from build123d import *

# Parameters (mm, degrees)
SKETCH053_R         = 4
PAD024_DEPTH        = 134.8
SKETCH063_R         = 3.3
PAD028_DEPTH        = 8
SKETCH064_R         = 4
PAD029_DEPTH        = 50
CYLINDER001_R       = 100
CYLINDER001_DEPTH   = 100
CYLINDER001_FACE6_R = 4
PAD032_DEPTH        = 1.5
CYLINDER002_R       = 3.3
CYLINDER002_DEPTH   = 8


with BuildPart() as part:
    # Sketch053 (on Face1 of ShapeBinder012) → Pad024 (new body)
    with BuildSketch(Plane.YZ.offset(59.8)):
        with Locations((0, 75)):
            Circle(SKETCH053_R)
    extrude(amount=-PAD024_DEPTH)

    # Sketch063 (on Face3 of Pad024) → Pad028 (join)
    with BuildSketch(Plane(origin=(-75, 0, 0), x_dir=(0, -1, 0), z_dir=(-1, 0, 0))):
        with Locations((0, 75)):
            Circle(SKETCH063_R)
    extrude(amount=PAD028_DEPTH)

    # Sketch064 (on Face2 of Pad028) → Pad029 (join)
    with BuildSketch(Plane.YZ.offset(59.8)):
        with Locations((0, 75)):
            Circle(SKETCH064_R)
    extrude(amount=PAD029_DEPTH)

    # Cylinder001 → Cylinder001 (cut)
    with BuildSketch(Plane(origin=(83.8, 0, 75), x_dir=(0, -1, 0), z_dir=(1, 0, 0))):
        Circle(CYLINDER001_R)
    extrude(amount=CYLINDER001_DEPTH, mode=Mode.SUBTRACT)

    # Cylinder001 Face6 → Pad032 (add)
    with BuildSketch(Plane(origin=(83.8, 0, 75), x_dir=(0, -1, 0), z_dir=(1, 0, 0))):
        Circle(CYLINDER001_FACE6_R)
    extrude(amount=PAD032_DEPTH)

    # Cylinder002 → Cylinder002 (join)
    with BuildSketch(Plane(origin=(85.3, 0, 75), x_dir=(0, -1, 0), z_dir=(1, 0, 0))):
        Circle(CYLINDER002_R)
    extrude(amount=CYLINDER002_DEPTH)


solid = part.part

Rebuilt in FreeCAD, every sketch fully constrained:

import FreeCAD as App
import Part
import Sketcher
Q = App.Units.Quantity

doc = App.newDocument("Part")
body = doc.addObject("PartDesign::Body", "Body")

sketch1 = body.newObject("Sketcher::SketchObject", "Sketch")
sketch1.AttachmentSupport = (doc.getObject("YZ_Plane"), [""])
sketch1.MapMode = "FlatFace"
sketch1.AttachmentOffset = App.Placement(App.Vector(0, 0, 59.8), App.Rotation())
sketch1.addGeometry(Part.Circle(App.Vector(0, 75, 0), App.Vector(0, 0, 1), 4), False)
sketch1.addConstraint([
    Sketcher.Constraint("PointOnObject", 0, 3, -2),
    Sketcher.Constraint("Diameter", 0, Q("8 mm")),
    Sketcher.Constraint("DistanceY", -1, 1, 0, 3, Q("75 mm")),
])
pad1 = body.newObject("PartDesign::Pad", "Pad")
pad1.Profile = sketch1
pad1.Length = 134.8
pad1.Reversed = True

sketch2 = body.newObject("Sketcher::SketchObject", "Sketch001")
sketch2.AttachmentSupport = (doc.getObject("YZ_Plane"), [""])
sketch2.MapMode = "FlatFace"
sketch2.AttachmentOffset = App.Placement(App.Vector(0, 0, -75), App.Rotation())
sketch2.addGeometry(Part.Circle(App.Vector(0, 75, 0), App.Vector(0, 0, 1), 3.3), False)
sketch2.addConstraint([
    Sketcher.Constraint("PointOnObject", 0, 3, -2),
    Sketcher.Constraint("Diameter", 0, Q("6.6 mm")),
    Sketcher.Constraint("DistanceY", -1, 1, 0, 3, Q("75 mm")),
])
pad2 = body.newObject("PartDesign::Pad", "Pad001")
pad2.Profile = sketch2
pad2.Length = 8
pad2.Reversed = True

sketch3 = body.newObject("Sketcher::SketchObject", "Sketch002")
sketch3.AttachmentSupport = (doc.getObject("YZ_Plane"), [""])
sketch3.MapMode = "FlatFace"
sketch3.AttachmentOffset = App.Placement(App.Vector(0, 0, 59.8), App.Rotation())
sketch3.addGeometry(Part.Circle(App.Vector(0, 75, 0), App.Vector(0, 0, 1), 4), False)
sketch3.addConstraint([
    Sketcher.Constraint("PointOnObject", 0, 3, -2),
    Sketcher.Constraint("Diameter", 0, Q("8 mm")),
    Sketcher.Constraint("DistanceY", -1, 1, 0, 3, Q("75 mm")),
])
pad3 = body.newObject("PartDesign::Pad", "Pad002")
pad3.Profile = sketch3
pad3.Length = 50

sketch4 = body.newObject("Sketcher::SketchObject", "Sketch003")
sketch4.AttachmentSupport = (doc.getObject("YZ_Plane"), [""])
sketch4.MapMode = "FlatFace"
sketch4.AttachmentOffset = App.Placement(App.Vector(0, 0, 83.8), App.Rotation())
sketch4.addGeometry(Part.Circle(App.Vector(0, 75, 0), App.Vector(0, 0, 1), 100), False)
sketch4.addConstraint([
    Sketcher.Constraint("PointOnObject", 0, 3, -2),
    Sketcher.Constraint("Diameter", 0, Q("200 mm")),
    Sketcher.Constraint("DistanceY", -1, 1, 0, 3, Q("75 mm")),
])
pocket1 = body.newObject("PartDesign::Pocket", "Pocket")
pocket1.Profile = sketch4
pocket1.Length = 100
pocket1.Reversed = True

sketch5 = body.newObject("Sketcher::SketchObject", "Sketch004")
sketch5.AttachmentSupport = (doc.getObject("YZ_Plane"), [""])
sketch5.MapMode = "FlatFace"
sketch5.AttachmentOffset = App.Placement(App.Vector(0, 0, 83.8), App.Rotation())
sketch5.addGeometry(Part.Circle(App.Vector(0, 75, 0), App.Vector(0, 0, 1), 4), False)
sketch5.addConstraint([
    Sketcher.Constraint("PointOnObject", 0, 3, -2),
    Sketcher.Constraint("Diameter", 0, Q("8 mm")),
    Sketcher.Constraint("DistanceY", -1, 1, 0, 3, Q("75 mm")),
])
pad4 = body.newObject("PartDesign::Pad", "Pad003")
pad4.Profile = sketch5
pad4.Length = 1.5

sketch6 = body.newObject("Sketcher::SketchObject", "Sketch005")
sketch6.AttachmentSupport = (doc.getObject("YZ_Plane"), [""])
sketch6.MapMode = "FlatFace"
sketch6.AttachmentOffset = App.Placement(App.Vector(0, 0, 85.3), App.Rotation())
sketch6.addGeometry(Part.Circle(App.Vector(0, 75, 0), App.Vector(0, 0, 1), 3.3), False)
sketch6.addConstraint([
    Sketcher.Constraint("PointOnObject", 0, 3, -2),
    Sketcher.Constraint("Diameter", 0, Q("6.6 mm")),
    Sketcher.Constraint("DistanceY", -1, 1, 0, 3, Q("75 mm")),
])
pad5 = body.newObject("PartDesign::Pad", "Pad004")
pad5.Profile = sketch6
pad5.Length = 8

doc.recompute()
